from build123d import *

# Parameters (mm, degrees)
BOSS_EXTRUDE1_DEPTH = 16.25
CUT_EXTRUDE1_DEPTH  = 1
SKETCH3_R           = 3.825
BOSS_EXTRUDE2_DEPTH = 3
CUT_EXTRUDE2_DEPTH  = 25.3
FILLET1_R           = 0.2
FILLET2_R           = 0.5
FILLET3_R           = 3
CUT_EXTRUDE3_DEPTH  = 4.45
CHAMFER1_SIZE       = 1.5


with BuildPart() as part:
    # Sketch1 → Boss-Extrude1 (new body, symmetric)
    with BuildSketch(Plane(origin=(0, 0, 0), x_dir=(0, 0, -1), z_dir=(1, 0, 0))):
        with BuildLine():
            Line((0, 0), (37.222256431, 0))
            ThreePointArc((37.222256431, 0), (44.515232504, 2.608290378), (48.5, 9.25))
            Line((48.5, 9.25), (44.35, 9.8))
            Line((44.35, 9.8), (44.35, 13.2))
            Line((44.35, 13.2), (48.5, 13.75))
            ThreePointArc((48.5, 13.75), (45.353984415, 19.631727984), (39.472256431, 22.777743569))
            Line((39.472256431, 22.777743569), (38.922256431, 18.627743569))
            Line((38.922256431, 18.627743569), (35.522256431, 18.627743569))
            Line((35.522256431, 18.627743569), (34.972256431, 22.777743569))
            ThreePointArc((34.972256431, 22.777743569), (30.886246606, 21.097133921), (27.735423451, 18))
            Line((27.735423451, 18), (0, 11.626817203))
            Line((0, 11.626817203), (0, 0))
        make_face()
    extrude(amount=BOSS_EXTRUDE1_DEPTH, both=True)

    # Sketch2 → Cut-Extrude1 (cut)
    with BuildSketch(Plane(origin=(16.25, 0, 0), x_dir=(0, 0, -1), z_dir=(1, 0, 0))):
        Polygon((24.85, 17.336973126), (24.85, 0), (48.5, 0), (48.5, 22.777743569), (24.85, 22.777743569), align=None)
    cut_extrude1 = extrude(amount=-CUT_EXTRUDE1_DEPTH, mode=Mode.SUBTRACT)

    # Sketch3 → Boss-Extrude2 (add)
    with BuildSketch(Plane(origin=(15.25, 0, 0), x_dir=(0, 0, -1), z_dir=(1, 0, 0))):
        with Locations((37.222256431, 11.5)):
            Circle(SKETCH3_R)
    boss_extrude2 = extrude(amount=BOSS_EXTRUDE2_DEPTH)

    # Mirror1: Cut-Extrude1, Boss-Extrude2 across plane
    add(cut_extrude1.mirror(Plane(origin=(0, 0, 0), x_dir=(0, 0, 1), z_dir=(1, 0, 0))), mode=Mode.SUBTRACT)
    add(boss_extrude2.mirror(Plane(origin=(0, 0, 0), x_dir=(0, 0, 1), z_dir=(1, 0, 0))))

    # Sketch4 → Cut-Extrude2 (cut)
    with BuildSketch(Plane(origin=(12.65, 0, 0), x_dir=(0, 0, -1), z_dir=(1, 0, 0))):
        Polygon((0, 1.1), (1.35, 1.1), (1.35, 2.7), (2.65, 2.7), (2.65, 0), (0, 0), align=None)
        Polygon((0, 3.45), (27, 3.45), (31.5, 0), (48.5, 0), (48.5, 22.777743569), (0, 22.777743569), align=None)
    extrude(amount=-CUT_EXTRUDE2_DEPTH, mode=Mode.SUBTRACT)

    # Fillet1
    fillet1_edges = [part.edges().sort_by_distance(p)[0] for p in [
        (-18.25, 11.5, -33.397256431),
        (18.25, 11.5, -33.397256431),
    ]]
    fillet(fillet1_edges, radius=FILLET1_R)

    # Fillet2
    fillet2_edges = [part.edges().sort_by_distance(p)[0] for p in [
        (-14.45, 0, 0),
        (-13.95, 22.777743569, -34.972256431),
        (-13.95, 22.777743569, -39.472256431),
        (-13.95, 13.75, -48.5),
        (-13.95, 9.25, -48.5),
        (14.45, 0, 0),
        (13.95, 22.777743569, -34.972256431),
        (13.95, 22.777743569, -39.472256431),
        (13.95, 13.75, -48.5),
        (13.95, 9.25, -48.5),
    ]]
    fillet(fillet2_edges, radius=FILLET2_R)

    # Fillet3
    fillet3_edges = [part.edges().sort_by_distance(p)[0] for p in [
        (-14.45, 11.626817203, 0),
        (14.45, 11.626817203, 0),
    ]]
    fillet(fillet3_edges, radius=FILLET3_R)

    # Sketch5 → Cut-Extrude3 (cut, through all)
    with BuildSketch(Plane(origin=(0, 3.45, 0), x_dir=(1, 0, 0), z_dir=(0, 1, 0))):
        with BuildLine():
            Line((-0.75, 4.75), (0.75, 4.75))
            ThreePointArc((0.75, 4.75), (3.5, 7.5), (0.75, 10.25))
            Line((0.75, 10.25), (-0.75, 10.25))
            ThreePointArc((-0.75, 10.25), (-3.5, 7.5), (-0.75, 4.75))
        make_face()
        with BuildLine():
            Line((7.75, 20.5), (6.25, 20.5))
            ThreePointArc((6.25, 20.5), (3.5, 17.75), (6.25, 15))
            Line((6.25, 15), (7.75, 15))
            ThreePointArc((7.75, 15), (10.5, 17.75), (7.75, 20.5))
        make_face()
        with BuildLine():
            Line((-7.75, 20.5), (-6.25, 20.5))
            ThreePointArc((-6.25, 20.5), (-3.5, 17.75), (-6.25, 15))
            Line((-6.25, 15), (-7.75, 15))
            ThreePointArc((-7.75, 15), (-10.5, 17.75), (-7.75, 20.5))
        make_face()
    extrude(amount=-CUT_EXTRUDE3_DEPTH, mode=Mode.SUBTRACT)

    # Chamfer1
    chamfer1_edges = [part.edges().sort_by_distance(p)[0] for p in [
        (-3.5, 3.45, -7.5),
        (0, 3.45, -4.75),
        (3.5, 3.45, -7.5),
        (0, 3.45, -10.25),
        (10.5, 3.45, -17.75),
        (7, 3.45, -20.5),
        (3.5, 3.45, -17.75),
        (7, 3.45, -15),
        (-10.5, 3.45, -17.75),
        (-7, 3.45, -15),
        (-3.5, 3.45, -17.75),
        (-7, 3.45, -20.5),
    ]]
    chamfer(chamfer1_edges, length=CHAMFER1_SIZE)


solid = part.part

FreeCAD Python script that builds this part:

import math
import FreeCAD as App
import Part
import Sketcher

V = App.Vector


def edges_at(feature, points):
    """Names of the edges that pass closest to the given points."""
    edges = feature.Shape.Edges
    near = lambda p: min(range(len(edges)), key=lambda i: edges[i].distToShape(Part.Vertex(*p))[0])
    return sorted({f"Edge{near(p) + 1}" for p in points})

doc = App.newDocument("Part")
body = doc.addObject("PartDesign::Body", "Body")

sketch1 = body.newObject("Sketcher::SketchObject", "Sketch")
sketch1.AttachmentSupport = (doc.getObject("YZ_Plane"), [""])
sketch1.MapMode = "FlatFace"
sketch1.addGeometry(Part.LineSegment(V(0, 0, 0), V(0, -37.2, 0)), False)
sketch1.addGeometry(Part.ArcOfCircle(Part.Circle(V(11.5, -37.2, 0), V(0, 0, 1), 11.5), math.radians(180), math.radians(259)), False)
sketch1.addGeometry(Part.LineSegment(V(9.2, -48.5, 0), V(9.8, -44.4, 0)), False)
sketch1.addGeometry(Part.LineSegment(V(9.8, -44.4, 0), V(13.2, -44.4, 0)), False)
sketch1.addGeometry(Part.LineSegment(V(13.2, -44.4, 0), V(13.8, -48.5, 0)), False)
sketch1.addGeometry(Part.ArcOfCircle(Part.Circle(V(11.5, -37.2, 0), V(0, 0, 1), 11.5), math.radians(-79), math.radians(-11)), False)
sketch1.addGeometry(Part.LineSegment(V(22.8, -39.5, 0), V(18.6, -38.9, 0)), False)
sketch1.addGeometry(Part.LineSegment(V(18.6, -38.9, 0), V(18.6, -35.5, 0)), False)
sketch1.addGeometry(Part.LineSegment(V(18.6, -35.5, 0), V(22.8, -35, 0)), False)
sketch1.addGeometry(Part.ArcOfCircle(Part.Circle(V(11.5, -37.2, 0), V(0, 0, 1), 11.5), math.radians(11), math.radians(56)), False)
sketch1.addGeometry(Part.LineSegment(V(18, -27.7, 0), V(11.6, 0, 0)), False)
sketch1.addGeometry(Part.LineSegment(V(11.6, 0, 0), V(0, 0, 0)), False)
sketch1.addConstraint(Sketcher.Constraint("Tangent", 0, 2, 1, 1))
sketch1.addConstraint(Sketcher.Constraint("Coincident", 1, 2, 2, 1))
sketch1.addConstraint(Sketcher.Constraint("Coincident", 2, 2, 3, 1))
sketch1.addConstraint(Sketcher.Constraint("Coincident", 3, 2, 4, 1))
sketch1.addConstraint(Sketcher.Constraint("Coincident", 4, 2, 5, 1))
sketch1.addConstraint(Sketcher.Constraint("Coincident", 5, 2, 6, 1))
sketch1.addConstraint(Sketcher.Constraint("Coincident", 6, 2, 7, 1))
sketch1.addConstraint(Sketcher.Constraint("Coincident", 7, 2, 8, 1))
sketch1.addConstraint(Sketcher.Constraint("Coincident", 8, 2, 9, 1))
sketch1.addConstraint(Sketcher.Constraint("Coincident", 9, 2, 10, 1))
sketch1.addConstraint(Sketcher.Constraint("Coincident", 10, 2, 11, 1))
sketch1.addConstraint(Sketcher.Constraint("Coincident", 11, 2, 0, 1))
sketch1.addConstraint(Sketcher.Constraint("Vertical", 0))
sketch1.addConstraint(Sketcher.Constraint("Horizontal", 3))
sketch1.addConstraint(Sketcher.Constraint("Vertical", 7))
sketch1.addConstraint(Sketcher.Constraint("Horizontal", 11))
sketch1.addConstraint(Sketcher.Constraint("Coincident", 11, 2, -1, 1))
sketch1.addConstraint(Sketcher.Constraint("Coincident", 5, 3, 1, 3))
sketch1.addConstraint(Sketcher.Constraint("Coincident", 9, 3, 1, 3))
sketch1.addConstraint(Sketcher.Constraint("Equal", 1, 5))
sketch1.addConstraint(Sketcher.Constraint("Equal", 5, 9))
sketch1.addConstraint(Sketcher.Constraint("Perpendicular", 2, 6))
sketch1.addConstraint(Sketcher.Constraint("Perpendicular", 4, 8))
sketch1.addConstraint(Sketcher.Constraint("Horizontal", 1, 2, 4, 2))
sketch1.addConstraint(Sketcher.Constraint("Vertical", 5, 2, 8, 2))
sketch1.addConstraint(Sketcher.Constraint("Equal", 3, 7))
sketch1.addConstraint(Sketcher.Constraint("Equal", 2, 4))
sketch1.addConstraint(Sketcher.Constraint("Equal", 4, 6))
sketch1.addConstraint(Sketcher.Constraint("Radius", 1, 11.5))
sketch1.addConstraint(Sketcher.Constraint("DistanceX", 3, 1, 3, 2, 3.4))
sketch1.addConstraint(Sketcher.Constraint("DistanceX", -1, 1, 9, 2, 18.0))
sketch1.addConstraint(Sketcher.Constraint("DistanceY", 1, 2, -1, 1, 48.5))
sketch1.addConstraint(Sketcher.Constraint("DistanceX", 1, 2, 4, 2, 4.5))
sketch1.addConstraint(Sketcher.Constraint("DistanceY", 2, 2, -1, 1, 44.35))
sketch1.addConstraint(Sketcher.Constraint("DistanceX", 11, 2, 11, 1, 11.626817))
pad1 = body.newObject("PartDesign::Pad", "Pad")
pad1.Profile = sketch1
pad1.Length = 32.5
pad1.Midplane = True

sketch2 = body.newObject("Sketcher::SketchObject", "Sketch001")
sketch2.AttachmentSupport = (doc.getObject("YZ_Plane"), [""])
sketch2.MapMode = "FlatFace"
sketch2.AttachmentOffset = App.Placement(V(0, 0, 16.25), App.Rotation())
sketch2.addGeometry(Part.LineSegment(V(0, -25, 0), V(0, -48, 0)), False)
sketch2.addGeometry(Part.LineSegment(V(0, -48, 0), V(23, -48, 0)), False)
sketch2.addGeometry(Part.LineSegment(V(23, -48, 0), V(23, -25, 0)), False)
sketch2.addGeometry(Part.LineSegment(V(23, -25, 0), V(0, -25, 0)), False)
sketch2.addConstraint(Sketcher.Constraint("Coincident", 0, 2, 1, 1))
sketch2.addConstraint(Sketcher.Constraint("Coincident", 1, 2, 2, 1))
sketch2.addConstraint(Sketcher.Constraint("Coincident", 2, 2, 3, 1))
sketch2.addConstraint(Sketcher.Constraint("Coincident", 3, 2, 0, 1))
sketch2.addConstraint(Sketcher.Constraint("Vertical", 0))
sketch2.addConstraint(Sketcher.Constraint("Horizontal", 1))
sketch2.addConstraint(Sketcher.Constraint("Vertical", 2))
sketch2.addConstraint(Sketcher.Constraint("Horizontal", 3))
sketch2.addConstraint(Sketcher.Constraint("PointOnObject", 0, 2, -2))
sketch2.addConstraint(Sketcher.Constraint("DistanceY", 0, 2, 0, 1, 23.65))
sketch2.addConstraint(Sketcher.Constraint("DistanceY", 0, 2, -1, 1, 48.5))
sketch2.addConstraint(Sketcher.Constraint("DistanceX", 1, 1, 1, 2, 22.777744))
pocket1 = body.newObject("PartDesign::Pocket", "Pocket")
pocket1.Profile = sketch2
pocket1.Length = 1

sketch3 = body.newObject("Sketcher::SketchObject", "Sketch002")
sketch3.AttachmentSupport = (doc.getObject("YZ_Plane"), [""])
sketch3.MapMode = "FlatFace"
sketch3.AttachmentOffset = App.Placement(V(0, 0, 15.25), App.Rotation())
sketch3.addGeometry(Part.Circle(V(11.5, -37.2, 0), V(0, 0, 1), 3.8), False)
sketch3.addConstraint(Sketcher.Constraint("Diameter", 0, 7.65))
sketch3.addConstraint(Sketcher.Constraint("DistanceX", -1, 1, 0, 3, 11.5))
sketch3.addConstraint(Sketcher.Constraint("DistanceY", 0, 3, -1, 1, 37.222256))
pad2 = body.newObject("PartDesign::Pad", "Pad001")
pad2.Profile = sketch3
pad2.Length = 3
doc.recompute()

mirrored = body.newObject("PartDesign::Mirrored", "Mirrored")
mirrored.Originals = [pocket1, pad2]
mirrored.MirrorPlane = (doc.getObject("YZ_Plane"), [""])
body.Tip = mirrored

sketch4 = body.newObject("Sketcher::SketchObject", "Sketch003")
sketch4.AttachmentSupport = (doc.getObject("YZ_Plane"), [""])
sketch4.MapMode = "FlatFace"
sketch4.AttachmentOffset = App.Placement(V(0, 0, 12.65), App.Rotation())
sketch4.addGeometry(Part.LineSegment(V(1.1, -1.4, 0), V(1.1, 0, 0)), False)
sketch4.addGeometry(Part.LineSegment(V(1.1, 0, 0), V(0, 0, 0)), False)
sketch4.addGeometry(Part.LineSegment(V(0, 0, 0), V(0, -2.6, 0)), False)
sketch4.addGeometry(Part.LineSegment(V(0, -2.6, 0), V(2.7, -2.6, 0)), False)
sketch4.addGeometry(Part.LineSegment(V(2.7, -2.6, 0), V(2.7, -1.4, 0)), False)
sketch4.addGeometry(Part.LineSegment(V(2.7, -1.4, 0), V(1.1, -1.4, 0)), False)
sketch4.addGeometry(Part.LineSegment(V(3.5, 0, 0), V(3.5, -27, 0)), False)
sketch4.addGeometry(Part.LineSegment(V(3.5, -27, 0), V(0, -31.5, 0)), False)
sketch4.addGeometry(Part.LineSegment(V(0, -31.5, 0), V(0, -48.5, 0)), False)
sketch4.addGeometry(Part.LineSegment(V(0, -48.5, 0), V(22.8, -48.5, 0)), False)
sketch4.addGeometry(Part.LineSegment(V(22.8, -48.5, 0), V(22.8, 0, 0)), False)
sketch4.addGeometry(Part.LineSegment(V(22.8, 0, 0), V(3.5, 0, 0)), False)
sketch4.addConstraint(Sketcher.Constraint("Coincident", 0, 2, 1, 1))
sketch4.addConstraint(Sketcher.Constraint("Coincident", 1, 2, 2, 1))
sketch4.addConstraint(Sketcher.Constraint("Coincident", 2, 2, 3, 1))
sketch4.addConstraint(Sketcher.Constraint("Coincident", 3, 2, 4, 1))
sketch4.addConstraint(Sketcher.Constraint("Coincident", 4, 2, 5, 1))
sketch4.addConstraint(Sketcher.Constraint("Coincident", 5, 2, 0, 1))
sketch4.addConstraint(Sketcher.Constraint("Coincident", 6, 2, 7, 1))
sketch4.addConstraint(Sketcher.Constraint("Coincident", 7, 2, 8, 1))
sketch4.addConstraint(Sketcher.Constraint("Coincident", 8, 2, 9, 1))
sketch4.addConstraint(Sketcher.Constraint("Coincident", 9, 2, 10, 1))
sketch4.addConstraint(Sketcher.Constraint("Coincident", 10, 2, 11, 1))
sketch4.addConstraint(Sketcher.Constraint("Coincident", 11, 2, 6, 1))
sketch4.addConstraint(Sketcher.Constraint("Vertical", 0))
sketch4.addConstraint(Sketcher.Constraint("Horizontal", 1))
sketch4.addConstraint(Sketcher.Constraint("Vertical", 2))
sketch4.addConstraint(Sketcher.Constraint("Horizontal", 3))
sketch4.addConstraint(Sketcher.Constraint("Vertical", 4))
sketch4.addConstraint(Sketcher.Constraint("Horizontal", 5))
sketch4.addConstraint(Sketcher.Constraint("Vertical", 6))
sketch4.addConstraint(Sketcher.Constraint("Vertical", 8))
sketch4.addConstraint(Sketcher.Constraint("Horizontal", 9))
sketch4.addConstraint(Sketcher.Constraint("Vertical", 10))
sketch4.addConstraint(Sketcher.Constraint("Horizontal", 11))
sketch4.addConstraint(Sketcher.Constraint("Coincident", 1, 2, -1, 1))
sketch4.addConstraint(Sketcher.Constraint("PointOnObject", 7, 2, -2))
sketch4.addConstraint(Sketcher.Constraint("PointOnObject", 10, 2, -1))
sketch4.addConstraint(Sketcher.Constraint("DistanceY", 6, 2, 6, 1, 27.0))
sketch4.addConstraint(Sketcher.Constraint("DistanceY", 8, 2, 8, 1, 17.0))
sketch4.addConstraint(Sketcher.Constraint("DistanceX", 1, 2, 1, 1, 1.1))
sketch4.addConstraint(Sketcher.Constraint("DistanceX", 3, 1, 3, 2, 2.7))
sketch4.addConstraint(Sketcher.Constraint("DistanceY", 4, 1, 4, 2, 1.3))
sketch4.addConstraint(Sketcher.Constraint("DistanceY", 10, 1, 10, 2, 48.5))
sketch4.addConstraint(Sketcher.Constraint("DistanceY", 0, 1, 0, 2, 1.35))
sketch4.addConstraint(Sketcher.Constraint("DistanceX", -1, 1, 6, 2, 3.45))
sketch4.addConstraint(Sketcher.Constraint("DistanceX", 9, 1, 9, 2, 22.777744))
pocket2 = body.newObject("PartDesign::Pocket", "Pocket001")
pocket2.Profile = sketch4
pocket2.Length = 25.3
doc.recompute()

fillet = body.newObject("PartDesign::Fillet", "Fillet")
fillet.Base = (pocket2, edges_at(pocket2, [(-18.25, 11.5, -33.397), (18.25, 11.5, -33.397)]))
fillet.Radius = 0.2
doc.recompute()

fillet2 = body.newObject("PartDesign::Fillet", "Fillet001")
fillet2.Base = (fillet, edges_at(fillet, [
    (-14.45, 0, 0),
    (-13.95, 22.778, -34.972),
    (-13.95, 22.778, -39.472),
    (-13.95, 13.75, -48.5),
    (-13.95, 9.25, -48.5),
    (14.45, 0, 0),
    (13.95, 22.778, -34.972),
    (13.95, 22.778, -39.472),
    (13.95, 13.75, -48.5),
    (13.95, 9.25, -48.5),
]))
fillet2.Radius = 0.5
doc.recompute()

fillet3 = body.newObject("PartDesign::Fillet", "Fillet002")
fillet3.Base = (fillet2, edges_at(fillet2, [(-14.45, 11.627, 0), (14.45, 11.627, 0)]))
fillet3.Radius = 3

sketch5 = body.newObject("Sketcher::SketchObject", "Sketch004")
sketch5.AttachmentSupport = (doc.getObject("XZ_Plane"), [""])
sketch5.MapMode = "FlatFace"
sketch5.AttachmentOffset = App.Placement(V(0, 0, -3.45), App.Rotation())
sketch5.addGeometry(Part.LineSegment(V(-0.8, -4.8, 0), V(0.8, -4.8, 0)), False)
sketch5.addGeometry(Part.ArcOfCircle(Part.Circle(V(0.8, -7.5, 0), V(0, 0, 1), 2.8), math.radians(-90), math.radians(90)), False)
sketch5.addGeometry(Part.LineSegment(V(0.8, -10.2, 0), V(-0.8, -10.2, 0)), False)
sketch5.addGeometry(Part.ArcOfCircle(Part.Circle(V(-0.8, -7.5, 0), V(0, 0, 1), 2.8), math.radians(90), math.radians(270)), False)
sketch5.addGeometry(Part.LineSegment(V(7.8, -20.5, 0), V(6.2, -20.5, 0)), False)
sketch5.addGeometry(Part.ArcOfCircle(Part.Circle(V(6.2, -17.8, 0), V(0, 0, 1), 2.8), math.radians(90), math.radians(270)), False)
sketch5.addGeometry(Part.LineSegment(V(6.2, -15, 0), V(7.8, -15, 0)), False)
sketch5.addGeometry(Part.ArcOfCircle(Part.Circle(V(7.8, -17.8, 0), V(0, 0, 1), 2.8), math.radians(-90), math.radians(90)), False)
sketch5.addGeometry(Part.LineSegment(V(-6.2, -20.5, 0), V(-7.8, -20.5, 0)), False)
sketch5.addGeometry(Part.ArcOfCircle(Part.Circle(V(-7.8, -17.8, 0), V(0, 0, 1), 2.8), math.radians(90), math.radians(270)), False)
sketch5.addGeometry(Part.LineSegment(V(-7.8, -15, 0), V(-6.2, -15, 0)), False)
sketch5.addGeometry(Part.ArcOfCircle(Part.Circle(V(-6.2, -17.8, 0), V(0, 0, 1), 2.8), math.radians(-90), math.radians(90)), False)
sketch5.addConstraint(Sketcher.Constraint("Tangent", 0, 2, 1, 2))
sketch5.addConstraint(Sketcher.Constraint("Tangent", 1, 1, 2, 1))
sketch5.addConstraint(Sketcher.Constraint("Tangent", 2, 2, 3, 2))
sketch5.addConstraint(Sketcher.Constraint("Tangent", 3, 1, 0, 1))
sketch5.addConstraint(Sketcher.Constraint("Tangent", 4, 2, 5, 2))
sketch5.addConstraint(Sketcher.Constraint("Tangent", 5, 1, 6, 1))
sketch5.addConstraint(Sketcher.Constraint("Tangent", 6, 2, 7, 2))
sketch5.addConstraint(Sketcher.Constraint("Tangent", 7, 1, 4, 1))
sketch5.addConstraint(Sketcher.Constraint("Tangent", 8, 2, 9, 2))
sketch5.addConstraint(Sketcher.Constraint("Tangent", 9, 1, 10, 1))
sketch5.addConstraint(Sketcher.Constraint("Tangent", 10, 2, 11, 2))
sketch5.addConstraint(Sketcher.Constraint("Tangent", 11, 1, 8, 1))
sketch5.addConstraint(Sketcher.Constraint("Horizontal", 0))
sketch5.addConstraint(Sketcher.Constraint("Horizontal", 2))
sketch5.addConstraint(Sketcher.Constraint("Horizontal", 4))
sketch5.addConstraint(Sketcher.Constraint("Horizontal", 6))
sketch5.addConstraint(Sketcher.Constraint("Horizontal", 8))
sketch5.addConstraint(Sketcher.Constraint("Horizontal", 10))
sketch5.addConstraint(Sketcher.Constraint("Equal", 3, 5))
sketch5.addConstraint(Sketcher.Constraint("Equal", 7, 9))
sketch5.addConstraint(Sketcher.Constraint("Symmetric", 7, 3, 9, 3, -2))
sketch5.addConstraint(Sketcher.Constraint("Equal", 2, 4))
sketch5.addConstraint(Sketcher.Constraint("Equal", 6, 8))
sketch5.addConstraint(Sketcher.Constraint("Radius", 1, 2.75))
sketch5.addConstraint(Sketcher.Constraint("DistanceX", 0, 1, 0, 2, 1.5))
sketch5.addConstraint(Sketcher.Constraint("DistanceY", 5, 1, -1, 1, 15.0))
sketch5.addConstraint(Sketcher.Constraint("DistanceX", 3, 3, 5, 3, 7.0))
sketch5.addConstraint(Sketcher.Constraint("DistanceX", 9, 3, 3, 3, 7.0))
sketch5.addConstraint(Sketcher.Constraint("DistanceY", 5, 3, 0, 2, 13.0))
pocket3 = body.newObject("PartDesign::Pocket", "Pocket002")
pocket3.Profile = sketch5
pocket3.Type = "ThroughAll"
pocket3.Reversed = True
doc.recompute()

chamfer = body.newObject("PartDesign::Chamfer", "Chamfer")
chamfer.Base = (pocket3, edges_at(pocket3, [
    (-3.5, 3.45, -7.5),
    (0, 3.45, -4.75),
    (3.5, 3.45, -7.5),
    (0, 3.45, -10.25),
    (10.5, 3.45, -17.75),
    (7, 3.45, -20.5),
    (3.5, 3.45, -17.75),
    (7, 3.45, -15),
    (-10.5, 3.45, -17.75),
    (-7, 3.45, -15),
    (-3.5, 3.45, -17.75),
    (-7, 3.45, -20.5),
]))
chamfer.Size = 1.5

doc.recompute()
